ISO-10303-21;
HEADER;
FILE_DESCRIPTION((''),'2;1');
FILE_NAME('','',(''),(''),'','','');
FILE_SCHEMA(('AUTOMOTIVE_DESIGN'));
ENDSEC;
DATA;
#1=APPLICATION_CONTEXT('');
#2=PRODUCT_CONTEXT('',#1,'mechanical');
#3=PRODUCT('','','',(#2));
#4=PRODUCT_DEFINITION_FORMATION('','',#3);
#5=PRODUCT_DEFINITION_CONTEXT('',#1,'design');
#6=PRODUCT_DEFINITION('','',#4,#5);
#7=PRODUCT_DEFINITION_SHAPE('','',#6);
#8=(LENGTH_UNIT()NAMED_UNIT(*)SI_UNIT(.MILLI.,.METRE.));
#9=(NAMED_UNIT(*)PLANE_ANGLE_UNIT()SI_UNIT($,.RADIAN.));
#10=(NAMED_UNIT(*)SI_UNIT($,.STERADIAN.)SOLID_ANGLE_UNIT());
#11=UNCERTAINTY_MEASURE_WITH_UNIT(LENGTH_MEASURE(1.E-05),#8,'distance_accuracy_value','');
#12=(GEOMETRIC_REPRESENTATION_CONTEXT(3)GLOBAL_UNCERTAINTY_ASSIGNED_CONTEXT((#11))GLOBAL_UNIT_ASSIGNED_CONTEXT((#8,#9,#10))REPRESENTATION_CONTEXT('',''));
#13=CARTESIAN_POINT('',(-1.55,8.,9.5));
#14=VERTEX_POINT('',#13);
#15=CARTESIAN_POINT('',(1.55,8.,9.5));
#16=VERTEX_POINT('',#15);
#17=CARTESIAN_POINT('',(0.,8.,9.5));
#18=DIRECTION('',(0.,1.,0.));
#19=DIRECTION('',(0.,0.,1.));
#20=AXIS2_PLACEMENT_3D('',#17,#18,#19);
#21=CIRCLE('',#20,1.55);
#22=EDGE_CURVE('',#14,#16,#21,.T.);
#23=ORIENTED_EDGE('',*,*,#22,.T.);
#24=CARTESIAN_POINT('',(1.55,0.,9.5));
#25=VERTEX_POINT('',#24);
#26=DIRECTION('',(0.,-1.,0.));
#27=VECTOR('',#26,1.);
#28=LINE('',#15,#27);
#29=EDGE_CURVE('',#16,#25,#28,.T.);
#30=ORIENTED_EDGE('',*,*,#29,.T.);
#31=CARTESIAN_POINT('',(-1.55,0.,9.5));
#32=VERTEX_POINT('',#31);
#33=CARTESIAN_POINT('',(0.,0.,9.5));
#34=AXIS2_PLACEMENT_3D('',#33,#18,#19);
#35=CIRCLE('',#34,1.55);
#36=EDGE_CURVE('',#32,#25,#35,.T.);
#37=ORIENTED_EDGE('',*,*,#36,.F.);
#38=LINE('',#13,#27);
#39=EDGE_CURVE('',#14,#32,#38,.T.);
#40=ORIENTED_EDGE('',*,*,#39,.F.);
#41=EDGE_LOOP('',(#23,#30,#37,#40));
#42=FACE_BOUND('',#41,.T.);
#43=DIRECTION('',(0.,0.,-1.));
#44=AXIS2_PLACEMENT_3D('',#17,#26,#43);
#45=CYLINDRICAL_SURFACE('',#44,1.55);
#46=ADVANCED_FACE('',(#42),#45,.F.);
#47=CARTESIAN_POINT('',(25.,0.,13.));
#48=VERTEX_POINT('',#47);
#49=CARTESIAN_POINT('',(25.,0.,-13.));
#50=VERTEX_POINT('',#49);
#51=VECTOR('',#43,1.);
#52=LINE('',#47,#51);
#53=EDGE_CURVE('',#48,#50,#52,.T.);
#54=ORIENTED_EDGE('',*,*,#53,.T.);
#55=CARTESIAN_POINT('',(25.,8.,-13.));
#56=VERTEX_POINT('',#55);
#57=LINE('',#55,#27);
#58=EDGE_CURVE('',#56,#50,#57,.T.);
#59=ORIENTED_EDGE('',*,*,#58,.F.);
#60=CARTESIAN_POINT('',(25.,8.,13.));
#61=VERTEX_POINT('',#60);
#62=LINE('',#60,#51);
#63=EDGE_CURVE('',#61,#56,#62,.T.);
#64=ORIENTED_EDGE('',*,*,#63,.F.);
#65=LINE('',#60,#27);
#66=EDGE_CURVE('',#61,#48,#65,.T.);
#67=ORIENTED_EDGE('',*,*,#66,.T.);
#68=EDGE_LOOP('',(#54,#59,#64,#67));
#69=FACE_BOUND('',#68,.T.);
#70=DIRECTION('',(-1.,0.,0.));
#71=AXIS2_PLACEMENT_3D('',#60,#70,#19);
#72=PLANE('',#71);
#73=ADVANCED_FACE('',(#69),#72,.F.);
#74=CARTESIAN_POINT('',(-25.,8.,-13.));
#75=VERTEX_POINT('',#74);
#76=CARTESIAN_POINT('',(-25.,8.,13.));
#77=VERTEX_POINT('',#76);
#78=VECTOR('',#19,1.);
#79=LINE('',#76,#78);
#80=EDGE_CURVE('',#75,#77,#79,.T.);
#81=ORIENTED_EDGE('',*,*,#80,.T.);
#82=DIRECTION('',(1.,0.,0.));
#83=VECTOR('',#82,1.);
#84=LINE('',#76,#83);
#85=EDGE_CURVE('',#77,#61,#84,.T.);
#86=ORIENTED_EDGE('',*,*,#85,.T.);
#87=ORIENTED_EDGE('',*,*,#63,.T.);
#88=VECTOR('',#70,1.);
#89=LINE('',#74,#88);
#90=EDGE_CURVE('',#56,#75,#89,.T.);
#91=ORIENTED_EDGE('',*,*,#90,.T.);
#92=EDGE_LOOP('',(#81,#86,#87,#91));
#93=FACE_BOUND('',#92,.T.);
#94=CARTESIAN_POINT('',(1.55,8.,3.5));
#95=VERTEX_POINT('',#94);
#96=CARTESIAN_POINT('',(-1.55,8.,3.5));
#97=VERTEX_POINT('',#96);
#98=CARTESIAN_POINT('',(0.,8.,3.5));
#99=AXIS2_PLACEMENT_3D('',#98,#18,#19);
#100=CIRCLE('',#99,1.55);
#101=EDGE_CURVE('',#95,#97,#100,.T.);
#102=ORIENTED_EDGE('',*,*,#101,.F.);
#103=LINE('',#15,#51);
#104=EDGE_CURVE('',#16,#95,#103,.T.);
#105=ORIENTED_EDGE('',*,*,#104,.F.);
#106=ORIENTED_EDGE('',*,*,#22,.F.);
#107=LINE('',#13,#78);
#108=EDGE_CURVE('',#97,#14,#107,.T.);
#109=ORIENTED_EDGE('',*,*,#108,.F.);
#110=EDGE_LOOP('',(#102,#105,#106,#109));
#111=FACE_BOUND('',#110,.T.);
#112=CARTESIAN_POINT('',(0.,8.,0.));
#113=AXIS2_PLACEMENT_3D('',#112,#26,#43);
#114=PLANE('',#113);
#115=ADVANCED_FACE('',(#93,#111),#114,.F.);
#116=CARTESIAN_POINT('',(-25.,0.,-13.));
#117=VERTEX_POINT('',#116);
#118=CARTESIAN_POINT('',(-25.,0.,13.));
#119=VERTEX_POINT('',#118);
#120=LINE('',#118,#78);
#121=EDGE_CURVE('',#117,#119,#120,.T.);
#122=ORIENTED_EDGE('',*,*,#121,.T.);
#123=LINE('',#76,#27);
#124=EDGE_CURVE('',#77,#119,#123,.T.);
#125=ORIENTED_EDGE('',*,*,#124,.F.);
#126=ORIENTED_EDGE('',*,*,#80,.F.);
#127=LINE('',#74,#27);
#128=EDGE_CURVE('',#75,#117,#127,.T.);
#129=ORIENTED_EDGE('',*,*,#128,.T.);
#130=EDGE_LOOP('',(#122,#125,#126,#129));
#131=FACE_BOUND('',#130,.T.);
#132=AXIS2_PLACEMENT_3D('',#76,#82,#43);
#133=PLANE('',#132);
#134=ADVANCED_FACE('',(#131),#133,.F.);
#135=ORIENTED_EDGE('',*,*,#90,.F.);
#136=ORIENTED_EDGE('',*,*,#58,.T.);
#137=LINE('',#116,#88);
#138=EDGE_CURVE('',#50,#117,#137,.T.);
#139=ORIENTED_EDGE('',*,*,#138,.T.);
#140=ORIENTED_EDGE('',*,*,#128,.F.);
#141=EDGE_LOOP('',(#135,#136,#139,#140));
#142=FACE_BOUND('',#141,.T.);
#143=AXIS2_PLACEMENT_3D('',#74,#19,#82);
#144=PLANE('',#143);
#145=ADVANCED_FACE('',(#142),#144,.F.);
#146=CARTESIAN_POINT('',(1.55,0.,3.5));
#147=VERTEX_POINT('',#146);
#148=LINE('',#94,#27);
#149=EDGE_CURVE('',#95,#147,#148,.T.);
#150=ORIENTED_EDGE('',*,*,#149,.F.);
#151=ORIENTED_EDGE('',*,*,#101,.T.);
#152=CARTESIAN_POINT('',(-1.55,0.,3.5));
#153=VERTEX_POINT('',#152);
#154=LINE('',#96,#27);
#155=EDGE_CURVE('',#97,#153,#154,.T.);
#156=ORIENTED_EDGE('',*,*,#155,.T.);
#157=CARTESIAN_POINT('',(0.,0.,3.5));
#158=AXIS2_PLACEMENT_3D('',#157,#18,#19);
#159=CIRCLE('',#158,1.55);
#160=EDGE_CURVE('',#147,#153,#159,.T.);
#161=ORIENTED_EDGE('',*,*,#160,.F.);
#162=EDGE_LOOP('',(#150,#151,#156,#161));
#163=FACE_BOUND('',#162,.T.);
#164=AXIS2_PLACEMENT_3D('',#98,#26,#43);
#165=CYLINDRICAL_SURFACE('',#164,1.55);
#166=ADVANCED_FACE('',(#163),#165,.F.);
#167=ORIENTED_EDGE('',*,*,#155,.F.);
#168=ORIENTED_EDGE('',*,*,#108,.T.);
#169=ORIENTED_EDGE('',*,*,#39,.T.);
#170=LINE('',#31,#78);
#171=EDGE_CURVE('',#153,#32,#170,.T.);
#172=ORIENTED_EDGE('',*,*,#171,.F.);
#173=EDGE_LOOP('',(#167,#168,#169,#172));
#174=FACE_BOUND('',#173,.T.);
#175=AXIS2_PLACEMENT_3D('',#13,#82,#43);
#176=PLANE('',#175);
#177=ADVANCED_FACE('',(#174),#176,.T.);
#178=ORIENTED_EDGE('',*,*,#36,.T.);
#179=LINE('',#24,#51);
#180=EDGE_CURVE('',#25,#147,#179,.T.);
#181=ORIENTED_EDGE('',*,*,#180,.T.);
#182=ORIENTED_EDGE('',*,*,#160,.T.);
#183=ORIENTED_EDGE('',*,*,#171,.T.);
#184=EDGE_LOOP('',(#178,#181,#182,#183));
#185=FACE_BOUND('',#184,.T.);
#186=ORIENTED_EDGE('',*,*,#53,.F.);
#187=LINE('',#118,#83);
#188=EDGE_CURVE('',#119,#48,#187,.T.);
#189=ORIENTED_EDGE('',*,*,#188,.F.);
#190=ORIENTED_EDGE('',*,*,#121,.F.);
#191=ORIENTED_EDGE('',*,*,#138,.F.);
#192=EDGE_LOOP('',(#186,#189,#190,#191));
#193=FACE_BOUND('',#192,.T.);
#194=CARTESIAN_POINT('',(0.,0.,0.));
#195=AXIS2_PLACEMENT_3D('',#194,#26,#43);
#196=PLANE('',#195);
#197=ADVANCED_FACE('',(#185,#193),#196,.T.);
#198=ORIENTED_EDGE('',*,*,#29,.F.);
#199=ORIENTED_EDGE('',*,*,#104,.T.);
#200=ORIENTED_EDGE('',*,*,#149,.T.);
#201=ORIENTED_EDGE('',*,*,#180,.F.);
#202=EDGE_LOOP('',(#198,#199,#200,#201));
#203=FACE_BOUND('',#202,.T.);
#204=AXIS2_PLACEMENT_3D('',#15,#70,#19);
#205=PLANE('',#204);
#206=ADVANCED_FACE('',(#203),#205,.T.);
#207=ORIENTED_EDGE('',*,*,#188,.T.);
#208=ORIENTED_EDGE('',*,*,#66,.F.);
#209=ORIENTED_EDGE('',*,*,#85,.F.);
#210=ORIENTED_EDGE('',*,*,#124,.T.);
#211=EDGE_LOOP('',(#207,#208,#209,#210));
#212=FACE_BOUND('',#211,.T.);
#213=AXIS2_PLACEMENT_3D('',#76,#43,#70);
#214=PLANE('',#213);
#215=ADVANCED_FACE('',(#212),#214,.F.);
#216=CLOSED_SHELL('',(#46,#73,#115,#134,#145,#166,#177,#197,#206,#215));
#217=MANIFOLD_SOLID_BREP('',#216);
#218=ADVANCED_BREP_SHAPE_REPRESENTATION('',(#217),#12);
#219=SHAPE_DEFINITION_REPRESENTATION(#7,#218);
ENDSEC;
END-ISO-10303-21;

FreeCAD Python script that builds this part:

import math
import FreeCAD as App
import Part
import Sketcher
Q = App.Units.Quantity


def add_polygon(sketch, points):
    """Adds a closed chain of lines whose ends are joined by coincident constraints."""
    first, n = sketch.GeometryCount, len(points)
    for a, b in zip(points, points[1:] + points[:1]):
        sketch.addGeometry(Part.LineSegment(App.Vector(*a, 0), App.Vector(*b, 0)), False)
    for i in range(n):
        sketch.addConstraint(Sketcher.Constraint("Coincident", first + i, 2, first + (i + 1) % n, 1))

doc = App.newDocument("Part")
params = doc.addObject("Spreadsheet::Sheet", "Params")
for row, (alias, value) in enumerate([
    ("sketch1_width", "50 mm"),
    ("sketch1_height", "26 mm"),
    ("sketch1_height2", "6 mm"),
    ("sketch1_radius", "1.55 mm"),
    ("pad1_length", "8 mm"),
], start=1):
    params.set(f"A{row}", alias)
    params.set(f"B{row}", "=" + value)
    params.setAlias(f"B{row}", alias)

body = doc.addObject("PartDesign::Body", "Body")

# Sketch on XZ plane
sketch1 = body.newObject("Sketcher::SketchObject", "Sketch")
sketch1.AttachmentSupport = (doc.getObject("XZ_Plane"), [""])
sketch1.MapMode = "FlatFace"
add_polygon(sketch1, [(-25, -13), (-25, 13), (25, 13), (25, -13)])  # lines 0-3
sketch1.addGeometry(Part.ArcOfCircle(Part.Circle(App.Vector(0, 9.5, 0), App.Vector(0, 0, 1), 1.6), math.radians(0), math.radians(180)), False)  # 4
sketch1.addGeometry(Part.LineSegment(App.Vector(-1.6, 9.5, 0), App.Vector(-1.6, 3.5, 0)), False)  # 5
sketch1.addGeometry(Part.ArcOfCircle(Part.Circle(App.Vector(0, 3.5, 0), App.Vector(0, 0, 1), 1.6), math.radians(180), math.radians(360)), False)  # 6
sketch1.addGeometry(Part.LineSegment(App.Vector(1.6, 3.5, 0), App.Vector(1.6, 9.5, 0)), False)  # 7
sketch1.addConstraint([
    Sketcher.Constraint("Tangent", 4, 2, 5, 1),
    Sketcher.Constraint("Tangent", 5, 2, 6, 1),
    Sketcher.Constraint("Tangent", 6, 2, 7, 1),
    Sketcher.Constraint("Tangent", 7, 2, 4, 1),
    Sketcher.Constraint("Vertical", 0),
    Sketcher.Constraint("Horizontal", 1),
    Sketcher.Constraint("Vertical", 2),
    Sketcher.Constraint("Horizontal", 3),
    Sketcher.Constraint("Vertical", 5),
    Sketcher.Constraint("Vertical", 7),
    Sketcher.Constraint("Symmetric", 0, 2, 2, 2, -1, 1),
    Sketcher.Constraint("PointOnObject", 4, 3, -2),
    Sketcher.Constraint("DistanceX", 1, 1, 1, 2, Q("50 mm")),
    Sketcher.Constraint("DistanceY", 0, 1, 0, 2, Q("26 mm")),
    Sketcher.Constraint("DistanceY", 5, 2, 5, 1, Q("6 mm")),
    Sketcher.Constraint("Radius", 4, Q("1.55 mm")),
    Sketcher.Constraint("DistanceY", -1, 1, 4, 3, Q("9.5 mm")),
])
sketch1.setExpression("Constraints[16]", "Params.sketch1_width")
sketch1.setExpression("Constraints[17]", "Params.sketch1_height")
sketch1.setExpression("Constraints[18]", "Params.sketch1_height2")
sketch1.setExpression("Constraints[19]", "Params.sketch1_radius")
pad1 = body.newObject("PartDesign::Pad", "Pad")
pad1.Profile = sketch1
pad1.setExpression("Length", "Params.pad1_length")
pad1.Reversed = True

doc.recompute()
